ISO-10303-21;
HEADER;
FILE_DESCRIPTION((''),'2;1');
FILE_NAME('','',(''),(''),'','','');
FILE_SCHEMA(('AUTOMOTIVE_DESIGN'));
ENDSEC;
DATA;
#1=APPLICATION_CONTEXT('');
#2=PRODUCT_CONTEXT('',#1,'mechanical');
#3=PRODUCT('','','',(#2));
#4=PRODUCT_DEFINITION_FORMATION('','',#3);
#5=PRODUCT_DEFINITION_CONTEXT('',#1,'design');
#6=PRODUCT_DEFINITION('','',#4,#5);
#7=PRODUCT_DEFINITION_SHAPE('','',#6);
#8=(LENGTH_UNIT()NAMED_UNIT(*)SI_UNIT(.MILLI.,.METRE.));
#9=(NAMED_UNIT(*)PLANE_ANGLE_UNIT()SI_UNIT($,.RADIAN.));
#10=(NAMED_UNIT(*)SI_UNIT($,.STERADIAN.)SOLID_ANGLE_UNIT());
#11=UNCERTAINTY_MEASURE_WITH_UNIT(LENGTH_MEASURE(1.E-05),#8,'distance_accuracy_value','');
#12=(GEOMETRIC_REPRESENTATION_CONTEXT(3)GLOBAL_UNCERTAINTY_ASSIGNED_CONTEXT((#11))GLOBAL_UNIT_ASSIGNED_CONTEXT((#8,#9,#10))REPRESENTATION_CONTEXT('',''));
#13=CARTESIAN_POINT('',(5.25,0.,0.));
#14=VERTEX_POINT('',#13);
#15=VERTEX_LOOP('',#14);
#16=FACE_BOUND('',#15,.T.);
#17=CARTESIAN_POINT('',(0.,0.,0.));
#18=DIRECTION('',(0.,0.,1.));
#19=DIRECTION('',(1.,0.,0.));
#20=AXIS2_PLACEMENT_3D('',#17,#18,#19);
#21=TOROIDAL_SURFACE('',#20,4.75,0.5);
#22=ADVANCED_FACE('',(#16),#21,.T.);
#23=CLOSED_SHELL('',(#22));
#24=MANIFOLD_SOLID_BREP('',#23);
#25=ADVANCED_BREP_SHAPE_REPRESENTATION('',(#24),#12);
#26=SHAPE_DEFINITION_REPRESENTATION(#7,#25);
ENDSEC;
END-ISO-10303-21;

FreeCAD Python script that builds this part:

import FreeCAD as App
import Part
import Sketcher
from FreeCAD import Vector
Q = App.Units.Quantity

doc = App.newDocument("Part")
body = doc.addObject("PartDesign::Body", "Body")

sketch1 = body.newObject("Sketcher::SketchObject", "Sketch")
sketch1.AttachmentSupport = (doc.getObject("YZ_Plane"), [""])
sketch1.MapMode = "FlatFace"
sketch1.addGeometry(Part.Circle(Vector(-4.8, 0, 0), Vector(0, 0, 1), 0.5), False)
sketch1.addConstraint(Sketcher.Constraint("PointOnObject", 0, 3, -1))
sketch1.addConstraint(Sketcher.Constraint("Diameter", 0, Q("1 mm")))
sketch1.addConstraint(Sketcher.Constraint("DistanceX", 0, 3, -1, 1, Q("4.75 mm")))
revolution = body.newObject("PartDesign::Revolution", "Revolution")
revolution.Profile = sketch1
revolution.ReferenceAxis = (sketch1, ["V_Axis"])
revolution.Angle = 360

doc.recompute()
